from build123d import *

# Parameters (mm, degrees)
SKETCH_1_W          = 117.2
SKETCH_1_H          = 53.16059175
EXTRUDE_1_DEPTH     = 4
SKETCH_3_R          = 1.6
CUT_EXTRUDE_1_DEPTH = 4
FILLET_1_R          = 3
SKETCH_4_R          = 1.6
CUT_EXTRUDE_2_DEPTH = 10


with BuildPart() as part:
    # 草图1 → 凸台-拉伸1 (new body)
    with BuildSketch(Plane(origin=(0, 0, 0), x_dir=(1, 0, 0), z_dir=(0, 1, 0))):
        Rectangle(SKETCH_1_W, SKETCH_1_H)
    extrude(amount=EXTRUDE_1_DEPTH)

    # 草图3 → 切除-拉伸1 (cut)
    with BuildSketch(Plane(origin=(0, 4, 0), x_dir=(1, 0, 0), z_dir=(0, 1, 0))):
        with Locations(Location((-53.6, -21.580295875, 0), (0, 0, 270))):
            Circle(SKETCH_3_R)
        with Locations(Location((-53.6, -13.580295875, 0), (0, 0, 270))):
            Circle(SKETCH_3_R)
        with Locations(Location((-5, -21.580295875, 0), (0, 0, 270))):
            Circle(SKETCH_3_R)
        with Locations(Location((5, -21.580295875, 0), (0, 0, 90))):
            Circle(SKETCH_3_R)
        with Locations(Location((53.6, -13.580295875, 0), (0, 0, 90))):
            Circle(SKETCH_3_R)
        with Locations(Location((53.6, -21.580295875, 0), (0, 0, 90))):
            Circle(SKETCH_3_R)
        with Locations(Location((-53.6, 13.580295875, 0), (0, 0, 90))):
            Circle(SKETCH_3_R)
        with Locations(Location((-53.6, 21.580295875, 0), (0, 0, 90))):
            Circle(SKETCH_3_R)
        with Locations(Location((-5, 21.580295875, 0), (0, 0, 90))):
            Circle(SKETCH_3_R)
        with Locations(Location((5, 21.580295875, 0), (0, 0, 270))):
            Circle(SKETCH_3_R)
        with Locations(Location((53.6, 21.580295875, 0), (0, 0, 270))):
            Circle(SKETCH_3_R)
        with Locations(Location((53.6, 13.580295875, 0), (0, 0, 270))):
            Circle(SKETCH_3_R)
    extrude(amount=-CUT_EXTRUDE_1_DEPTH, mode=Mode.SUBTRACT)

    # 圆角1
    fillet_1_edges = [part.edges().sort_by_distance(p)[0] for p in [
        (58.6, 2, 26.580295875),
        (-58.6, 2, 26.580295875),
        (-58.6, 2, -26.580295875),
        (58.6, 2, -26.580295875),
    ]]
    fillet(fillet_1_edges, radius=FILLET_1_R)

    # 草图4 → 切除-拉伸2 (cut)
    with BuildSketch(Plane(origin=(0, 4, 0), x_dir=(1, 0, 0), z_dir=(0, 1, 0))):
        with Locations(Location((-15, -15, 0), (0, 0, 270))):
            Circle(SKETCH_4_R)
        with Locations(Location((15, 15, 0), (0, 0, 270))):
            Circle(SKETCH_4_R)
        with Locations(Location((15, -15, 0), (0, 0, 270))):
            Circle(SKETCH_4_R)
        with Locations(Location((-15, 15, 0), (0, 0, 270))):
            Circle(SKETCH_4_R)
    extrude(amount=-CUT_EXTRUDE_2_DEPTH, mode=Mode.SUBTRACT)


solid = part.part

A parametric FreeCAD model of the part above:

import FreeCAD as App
import Part
import Sketcher

V = App.Vector
Q = App.Units.Quantity


def edges_at(feature, points):
    """Names of the edges that pass closest to the given points."""
    edges = feature.Shape.Edges
    near = lambda p: min(range(len(edges)), key=lambda i: edges[i].distToShape(Part.Vertex(*p))[0])
    return sorted({f"Edge{near(p) + 1}" for p in points})

doc = App.newDocument("Part")
params = doc.addObject("Spreadsheet::Sheet", "Params")
for row, (alias, value) in enumerate([
    ("sketch1_width", "117.2 mm"),
    ("pad1_length", "4 mm"),
    ("sketch2_diameter", "3.2 mm"),
    ("pocket1_length", "4 mm"),
    ("fillet_radius", "3 mm"),
    ("sketch3_diameter", "3.2 mm"),
    ("pocket2_length", "10 mm"),
], start=1):
    params.set(f"A{row}", alias)
    params.set(f"B{row}", "=" + value)
    params.setAlias(f"B{row}", alias)

body = doc.addObject("PartDesign::Body", "Body")

sketch1 = body.newObject("Sketcher::SketchObject", "Sketch")
sketch1.AttachmentSupport = (doc.getObject("XZ_Plane"), [""])
sketch1.MapMode = "FlatFace"
sketch1.addGeometry([
    Part.LineSegment(V(-59, -27, 0), V(-59, 27, 0)),
    Part.LineSegment(V(-59, 27, 0), V(59, 27, 0)),
    Part.LineSegment(V(59, 27, 0), V(59, -27, 0)),
    Part.LineSegment(V(59, -27, 0), V(-59, -27, 0)),
], False)
sketch1.addConstraint([
    Sketcher.Constraint("Coincident", 0, 2, 1, 1),
    Sketcher.Constraint("Coincident", 1, 2, 2, 1),
    Sketcher.Constraint("Coincident", 2, 2, 3, 1),
    Sketcher.Constraint("Coincident", 3, 2, 0, 1),
    Sketcher.Constraint("Vertical", 0),
    Sketcher.Constraint("Horizontal", 1),
    Sketcher.Constraint("Vertical", 2),
    Sketcher.Constraint("Horizontal", 3),
    Sketcher.Constraint("Symmetric", 0, 2, 2, 2, -1, 1),
    Sketcher.Constraint("DistanceX", 1, 1, 1, 2, Q("117.2 mm")),
    Sketcher.Constraint("DistanceY", 0, 1, 0, 2, Q("53.160592 mm")),
])
sketch1.setExpression("Constraints[9]", "Params.sketch1_width")
pad1 = body.newObject("PartDesign::Pad", "Pad")
pad1.Profile = sketch1
pad1.setExpression("Length", "Params.pad1_length")
pad1.Reversed = True

sketch2 = body.newObject("Sketcher::SketchObject", "Sketch001")
sketch2.AttachmentSupport = (doc.getObject("XZ_Plane"), [""])
sketch2.MapMode = "FlatFace"
sketch2.AttachmentOffset = App.Placement(V(0, 0, -4), App.Rotation())
sketch2.addGeometry([
    Part.Circle(V(-53.6, 21.6, 0), V(0, 0, 1), 1.6),
    Part.Circle(V(-53.6, 13.6, 0), V(0, 0, 1), 1.6),
    Part.Circle(V(-5, 21.6, 0), V(0, 0, 1), 1.6),
    Part.Circle(V(5, 21.6, 0), V(0, 0, 1), 1.6),
    Part.Circle(V(53.6, 13.6, 0), V(0, 0, 1), 1.6),
    Part.Circle(V(53.6, 21.6, 0), V(0, 0, 1), 1.6),
    Part.Circle(V(-53.6, -13.6, 0), V(0, 0, 1), 1.6),
    Part.Circle(V(-53.6, -21.6, 0), V(0, 0, 1), 1.6),
    Part.Circle(V(-5, -21.6, 0), V(0, 0, 1), 1.6),
    Part.Circle(V(5, -21.6, 0), V(0, 0, 1), 1.6),
    Part.Circle(V(53.6, -21.6, 0), V(0, 0, 1), 1.6),
    Part.Circle(V(53.6, -13.6, 0), V(0, 0, 1), 1.6),
], False)
sketch2.addConstraint([
    Sketcher.Constraint("Equal", 0, 1),
    Sketcher.Constraint("Equal", 1, 2),
    Sketcher.Constraint("Equal", 2, 3),
    Sketcher.Constraint("Equal", 3, 4),
    Sketcher.Constraint("Equal", 4, 5),
    Sketcher.Constraint("Equal", 5, 6),
    Sketcher.Constraint("Equal", 6, 7),
    Sketcher.Constraint("Equal", 7, 8),
    Sketcher.Constraint("Equal", 8, 9),
    Sketcher.Constraint("Equal", 9, 10),
    Sketcher.Constraint("Equal", 10, 11),
    Sketcher.Constraint("Symmetric", 4, 3, 6, 3, -1, 1),
    Sketcher.Constraint("Symmetric", 5, 3, 7, 3, -1, 1),
    Sketcher.Constraint("Symmetric", 3, 3, 8, 3, -1, 1),
    Sketcher.Constraint("Symmetric", 2, 3, 9, 3, -1, 1),
    Sketcher.Constraint("Symmetric", 0, 3, 10, 3, -1, 1),
    Sketcher.Constraint("Symmetric", 1, 3, 11, 3, -1, 1),
    Sketcher.Constraint("Symmetric", 2, 3, 3, 3, -2),
    Sketcher.Constraint("Symmetric", 1, 3, 4, 3, -2),
    Sketcher.Constraint("Symmetric", 0, 3, 5, 3, -2),
    Sketcher.Constraint("Horizontal", 0, 3, 2, 3),
    Sketcher.Constraint("Vertical", 0, 3, 1, 3),
    Sketcher.Constraint("Diameter", 0, Q("3.2 mm")),
    Sketcher.Constraint("DistanceX", 2, 3, -1, 1, Q("5 mm")),
    Sketcher.Constraint("DistanceY", 1, 3, 0, 3, Q("8 mm")),
    Sketcher.Constraint("DistanceX", 0, 3, -1, 1, Q("53.6 mm")),
    Sketcher.Constraint("DistanceY", 6, 3, 1, 3, Q("27.160592 mm")),
])
sketch2.setExpression("Constraints[22]", "Params.sketch2_diameter")
pocket1 = body.newObject("PartDesign::Pocket", "Pocket")
pocket1.Profile = sketch2
pocket1.setExpression("Length", "Params.pocket1_length")
pocket1.Reversed = True
doc.recompute()

fillet = body.newObject("PartDesign::Fillet", "Fillet")
fillet.Base = (pocket1, edges_at(pocket1, [
    (58.6, 2, 26.58),
    (-58.6, 2, 26.58),
    (-58.6, 2, -26.58),
    (58.6, 2, -26.58),
]))
fillet.setExpression("Radius", "Params.fillet_radius")

sketch3 = body.newObject("Sketcher::SketchObject", "Sketch002")
sketch3.AttachmentSupport = (doc.getObject("XZ_Plane"), [""])
sketch3.MapMode = "FlatFace"
sketch3.AttachmentOffset = App.Placement(V(0, 0, -4), App.Rotation())
sketch3.addGeometry([
    Part.Circle(V(-15, 15, 0), V(0, 0, 1), 1.6),
    Part.Circle(V(15, -15, 0), V(0, 0, 1), 1.6),
    Part.Circle(V(15, 15, 0), V(0, 0, 1), 1.6),
    Part.Circle(V(-15, -15, 0), V(0, 0, 1), 1.6),
], False)
sketch3.addConstraint([
    Sketcher.Constraint("Equal", 0, 1),
    Sketcher.Constraint("Equal", 1, 2),
    Sketcher.Constraint("Equal", 2, 3),
    Sketcher.Constraint("Symmetric", 0, 3, 1, 3, -1, 1),
    Sketcher.Constraint("Symmetric", 2, 3, 3, 3, -1, 1),
    Sketcher.Constraint("Symmetric", 0, 3, 2, 3, -2),
    Sketcher.Constraint("Diameter", 0, Q("3.2 mm")),
    Sketcher.Constraint("DistanceX", 0, 3, -1, 1, Q("15 mm")),
    Sketcher.Constraint("DistanceY", -1, 1, 0, 3, Q("15 mm")),
])
sketch3.setExpression("Constraints[6]", "Params.sketch3_diameter")
pocket2 = body.newObject("PartDesign::Pocket", "Pocket001")
pocket2.Profile = sketch3
pocket2.setExpression("Length", "Params.pocket2_length")
pocket2.Reversed = True

doc.recompute()
